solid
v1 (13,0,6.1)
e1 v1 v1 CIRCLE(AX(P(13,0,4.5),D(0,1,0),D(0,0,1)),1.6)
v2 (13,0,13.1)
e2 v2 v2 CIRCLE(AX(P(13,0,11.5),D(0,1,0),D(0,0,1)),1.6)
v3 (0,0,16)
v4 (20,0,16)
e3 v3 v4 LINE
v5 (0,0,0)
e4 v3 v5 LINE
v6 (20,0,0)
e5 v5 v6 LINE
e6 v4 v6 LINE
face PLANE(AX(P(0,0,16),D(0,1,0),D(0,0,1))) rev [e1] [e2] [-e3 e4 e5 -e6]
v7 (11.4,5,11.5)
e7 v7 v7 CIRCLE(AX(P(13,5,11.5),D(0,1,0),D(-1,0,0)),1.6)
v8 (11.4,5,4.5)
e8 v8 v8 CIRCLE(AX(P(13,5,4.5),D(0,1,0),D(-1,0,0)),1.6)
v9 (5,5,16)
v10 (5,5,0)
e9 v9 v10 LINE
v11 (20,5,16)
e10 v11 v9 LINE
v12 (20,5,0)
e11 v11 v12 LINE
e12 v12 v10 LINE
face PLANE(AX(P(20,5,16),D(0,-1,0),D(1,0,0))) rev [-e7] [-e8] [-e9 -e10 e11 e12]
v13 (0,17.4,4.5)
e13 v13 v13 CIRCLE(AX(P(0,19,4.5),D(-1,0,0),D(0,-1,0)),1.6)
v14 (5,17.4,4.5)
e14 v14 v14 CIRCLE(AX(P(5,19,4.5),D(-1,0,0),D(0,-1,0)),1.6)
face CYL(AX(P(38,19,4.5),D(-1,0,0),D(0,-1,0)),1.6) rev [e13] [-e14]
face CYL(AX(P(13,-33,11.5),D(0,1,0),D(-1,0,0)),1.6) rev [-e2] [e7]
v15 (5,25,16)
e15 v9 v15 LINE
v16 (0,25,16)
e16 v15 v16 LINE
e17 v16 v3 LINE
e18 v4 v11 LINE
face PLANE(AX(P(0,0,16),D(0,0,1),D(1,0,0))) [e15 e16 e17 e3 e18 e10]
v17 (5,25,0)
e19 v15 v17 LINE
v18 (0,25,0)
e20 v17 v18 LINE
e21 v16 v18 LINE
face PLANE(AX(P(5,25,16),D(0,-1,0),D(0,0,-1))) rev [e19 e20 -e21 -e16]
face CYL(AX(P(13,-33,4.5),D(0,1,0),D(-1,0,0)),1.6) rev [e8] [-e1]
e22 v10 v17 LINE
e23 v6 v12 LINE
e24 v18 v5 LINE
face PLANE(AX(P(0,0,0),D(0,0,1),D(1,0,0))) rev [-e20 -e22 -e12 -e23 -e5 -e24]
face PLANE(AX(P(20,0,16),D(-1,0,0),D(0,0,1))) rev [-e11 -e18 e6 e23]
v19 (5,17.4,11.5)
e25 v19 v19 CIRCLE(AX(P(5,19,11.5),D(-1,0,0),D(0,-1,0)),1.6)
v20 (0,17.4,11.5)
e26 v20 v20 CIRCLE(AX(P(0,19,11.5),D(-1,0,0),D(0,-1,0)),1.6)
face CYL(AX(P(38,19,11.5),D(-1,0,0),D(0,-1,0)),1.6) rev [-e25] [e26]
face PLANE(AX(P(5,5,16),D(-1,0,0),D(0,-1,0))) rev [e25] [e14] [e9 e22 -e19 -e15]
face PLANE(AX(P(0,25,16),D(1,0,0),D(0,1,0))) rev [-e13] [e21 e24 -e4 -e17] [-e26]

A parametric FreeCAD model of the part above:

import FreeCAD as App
import Part
import Sketcher
from FreeCAD import Vector
Q = App.Units.Quantity

doc = App.newDocument("Part")
body = doc.addObject("PartDesign::Body", "Body")

# Sketch on XY plane
sketch1 = body.newObject("Sketcher::SketchObject", "Sketch")
sketch1.AttachmentSupport = (doc.getObject("XY_Plane"), [""])
sketch1.MapMode = "FlatFace"
sketch1.addGeometry([
    Part.LineSegment(Vector(0, 25, 0), Vector(0, 0, 0)),  # 0
    Part.LineSegment(Vector(0, 0, 0), Vector(20, 0, 0)),  # 1
    Part.LineSegment(Vector(20, 0, 0), Vector(20, 5, 0)),  # 2
    Part.LineSegment(Vector(20, 5, 0), Vector(5, 5, 0)),  # 3
    Part.LineSegment(Vector(5, 5, 0), Vector(5, 25, 0)),  # 4
    Part.LineSegment(Vector(5, 25, 0), Vector(0, 25, 0)),  # 5
], False)
sketch1.addConstraint([
    Sketcher.Constraint("Coincident", 0, 2, 1, 1),
    Sketcher.Constraint("Coincident", 1, 2, 2, 1),
    Sketcher.Constraint("Coincident", 2, 2, 3, 1),
    Sketcher.Constraint("Coincident", 3, 2, 4, 1),
    Sketcher.Constraint("Coincident", 4, 2, 5, 1),
    Sketcher.Constraint("Coincident", 5, 2, 0, 1),
    Sketcher.Constraint("Vertical", 0),
    Sketcher.Constraint("Horizontal", 1),
    Sketcher.Constraint("Vertical", 2),
    Sketcher.Constraint("Horizontal", 3),
    Sketcher.Constraint("Vertical", 4),
    Sketcher.Constraint("Horizontal", 5),
    Sketcher.Constraint("Coincident", 0, 2, -1, 1),
    Sketcher.Constraint("Equal", 5, 2),
    Sketcher.Constraint("Equal", 1, 4),
    Sketcher.Constraint("DistanceX", 1, 1, 1, 2, Q("20 mm")),
    Sketcher.Constraint("DistanceX", 3, 2, 3, 1, Q("15 mm")),
])
pad1 = body.newObject("PartDesign::Pad", "Pad")
pad1.Profile = sketch1
pad1.Length = 16

# Sketch on XZ plane
sketch2 = body.newObject("Sketcher::SketchObject", "Sketch001")
sketch2.AttachmentSupport = (doc.getObject("XZ_Plane"), [""])
sketch2.MapMode = "FlatFace"
sketch2.AttachmentOffset = App.Placement(Vector(0, 0, -5), App.Rotation())
sketch2.addGeometry([
    Part.Circle(Vector(13, 4.5, 0), Vector(0, 0, 1), 1.6),
    Part.Circle(Vector(13, 11.5, 0), Vector(0, 0, 1), 1.6),
], False)
sketch2.addConstraint([
    Sketcher.Constraint("Equal", 0, 1),
    Sketcher.Constraint("Vertical", 0, 3, 1, 3),
    Sketcher.Constraint("Diameter", 0, Q("3.2 mm")),
    Sketcher.Constraint("DistanceX", -1, 1, 0, 3, Q("13 mm")),
    Sketcher.Constraint("DistanceY", 0, 3, 1, 3, Q("7 mm")),
    Sketcher.Constraint("DistanceY", -1, 1, 0, 3, Q("4.5 mm")),
])
pocket1 = body.newObject("PartDesign::Pocket", "Pocket")
pocket1.Profile = sketch2
pocket1.Length = 38
pocket1.Reversed = True

# Sketch on YZ plane
sketch3 = body.newObject("Sketcher::SketchObject", "Sketch002")
sketch3.AttachmentSupport = (doc.getObject("YZ_Plane"), [""])
sketch3.MapMode = "FlatFace"
sketch3.addGeometry([
    Part.Circle(Vector(19, 4.5, 0), Vector(0, 0, 1), 1.6),
    Part.Circle(Vector(19, 11.5, 0), Vector(0, 0, 1), 1.6),
], False)
sketch3.addConstraint([
    Sketcher.Constraint("Equal", 0, 1),
    Sketcher.Constraint("Vertical", 0, 3, 1, 3),
    Sketcher.Constraint("Diameter", 0, Q("3.2 mm")),
    Sketcher.Constraint("DistanceX", -1, 1, 0, 3, Q("19 mm")),
    Sketcher.Constraint("DistanceY", 0, 3, 1, 3, Q("7 mm")),
    Sketcher.Constraint("DistanceY", -1, 1, 0, 3, Q("4.5 mm")),
])
pocket2 = body.newObject("PartDesign::Pocket", "Pocket001")
pocket2.Profile = sketch3
pocket2.Length = 38
pocket2.Reversed = True

doc.recompute()
